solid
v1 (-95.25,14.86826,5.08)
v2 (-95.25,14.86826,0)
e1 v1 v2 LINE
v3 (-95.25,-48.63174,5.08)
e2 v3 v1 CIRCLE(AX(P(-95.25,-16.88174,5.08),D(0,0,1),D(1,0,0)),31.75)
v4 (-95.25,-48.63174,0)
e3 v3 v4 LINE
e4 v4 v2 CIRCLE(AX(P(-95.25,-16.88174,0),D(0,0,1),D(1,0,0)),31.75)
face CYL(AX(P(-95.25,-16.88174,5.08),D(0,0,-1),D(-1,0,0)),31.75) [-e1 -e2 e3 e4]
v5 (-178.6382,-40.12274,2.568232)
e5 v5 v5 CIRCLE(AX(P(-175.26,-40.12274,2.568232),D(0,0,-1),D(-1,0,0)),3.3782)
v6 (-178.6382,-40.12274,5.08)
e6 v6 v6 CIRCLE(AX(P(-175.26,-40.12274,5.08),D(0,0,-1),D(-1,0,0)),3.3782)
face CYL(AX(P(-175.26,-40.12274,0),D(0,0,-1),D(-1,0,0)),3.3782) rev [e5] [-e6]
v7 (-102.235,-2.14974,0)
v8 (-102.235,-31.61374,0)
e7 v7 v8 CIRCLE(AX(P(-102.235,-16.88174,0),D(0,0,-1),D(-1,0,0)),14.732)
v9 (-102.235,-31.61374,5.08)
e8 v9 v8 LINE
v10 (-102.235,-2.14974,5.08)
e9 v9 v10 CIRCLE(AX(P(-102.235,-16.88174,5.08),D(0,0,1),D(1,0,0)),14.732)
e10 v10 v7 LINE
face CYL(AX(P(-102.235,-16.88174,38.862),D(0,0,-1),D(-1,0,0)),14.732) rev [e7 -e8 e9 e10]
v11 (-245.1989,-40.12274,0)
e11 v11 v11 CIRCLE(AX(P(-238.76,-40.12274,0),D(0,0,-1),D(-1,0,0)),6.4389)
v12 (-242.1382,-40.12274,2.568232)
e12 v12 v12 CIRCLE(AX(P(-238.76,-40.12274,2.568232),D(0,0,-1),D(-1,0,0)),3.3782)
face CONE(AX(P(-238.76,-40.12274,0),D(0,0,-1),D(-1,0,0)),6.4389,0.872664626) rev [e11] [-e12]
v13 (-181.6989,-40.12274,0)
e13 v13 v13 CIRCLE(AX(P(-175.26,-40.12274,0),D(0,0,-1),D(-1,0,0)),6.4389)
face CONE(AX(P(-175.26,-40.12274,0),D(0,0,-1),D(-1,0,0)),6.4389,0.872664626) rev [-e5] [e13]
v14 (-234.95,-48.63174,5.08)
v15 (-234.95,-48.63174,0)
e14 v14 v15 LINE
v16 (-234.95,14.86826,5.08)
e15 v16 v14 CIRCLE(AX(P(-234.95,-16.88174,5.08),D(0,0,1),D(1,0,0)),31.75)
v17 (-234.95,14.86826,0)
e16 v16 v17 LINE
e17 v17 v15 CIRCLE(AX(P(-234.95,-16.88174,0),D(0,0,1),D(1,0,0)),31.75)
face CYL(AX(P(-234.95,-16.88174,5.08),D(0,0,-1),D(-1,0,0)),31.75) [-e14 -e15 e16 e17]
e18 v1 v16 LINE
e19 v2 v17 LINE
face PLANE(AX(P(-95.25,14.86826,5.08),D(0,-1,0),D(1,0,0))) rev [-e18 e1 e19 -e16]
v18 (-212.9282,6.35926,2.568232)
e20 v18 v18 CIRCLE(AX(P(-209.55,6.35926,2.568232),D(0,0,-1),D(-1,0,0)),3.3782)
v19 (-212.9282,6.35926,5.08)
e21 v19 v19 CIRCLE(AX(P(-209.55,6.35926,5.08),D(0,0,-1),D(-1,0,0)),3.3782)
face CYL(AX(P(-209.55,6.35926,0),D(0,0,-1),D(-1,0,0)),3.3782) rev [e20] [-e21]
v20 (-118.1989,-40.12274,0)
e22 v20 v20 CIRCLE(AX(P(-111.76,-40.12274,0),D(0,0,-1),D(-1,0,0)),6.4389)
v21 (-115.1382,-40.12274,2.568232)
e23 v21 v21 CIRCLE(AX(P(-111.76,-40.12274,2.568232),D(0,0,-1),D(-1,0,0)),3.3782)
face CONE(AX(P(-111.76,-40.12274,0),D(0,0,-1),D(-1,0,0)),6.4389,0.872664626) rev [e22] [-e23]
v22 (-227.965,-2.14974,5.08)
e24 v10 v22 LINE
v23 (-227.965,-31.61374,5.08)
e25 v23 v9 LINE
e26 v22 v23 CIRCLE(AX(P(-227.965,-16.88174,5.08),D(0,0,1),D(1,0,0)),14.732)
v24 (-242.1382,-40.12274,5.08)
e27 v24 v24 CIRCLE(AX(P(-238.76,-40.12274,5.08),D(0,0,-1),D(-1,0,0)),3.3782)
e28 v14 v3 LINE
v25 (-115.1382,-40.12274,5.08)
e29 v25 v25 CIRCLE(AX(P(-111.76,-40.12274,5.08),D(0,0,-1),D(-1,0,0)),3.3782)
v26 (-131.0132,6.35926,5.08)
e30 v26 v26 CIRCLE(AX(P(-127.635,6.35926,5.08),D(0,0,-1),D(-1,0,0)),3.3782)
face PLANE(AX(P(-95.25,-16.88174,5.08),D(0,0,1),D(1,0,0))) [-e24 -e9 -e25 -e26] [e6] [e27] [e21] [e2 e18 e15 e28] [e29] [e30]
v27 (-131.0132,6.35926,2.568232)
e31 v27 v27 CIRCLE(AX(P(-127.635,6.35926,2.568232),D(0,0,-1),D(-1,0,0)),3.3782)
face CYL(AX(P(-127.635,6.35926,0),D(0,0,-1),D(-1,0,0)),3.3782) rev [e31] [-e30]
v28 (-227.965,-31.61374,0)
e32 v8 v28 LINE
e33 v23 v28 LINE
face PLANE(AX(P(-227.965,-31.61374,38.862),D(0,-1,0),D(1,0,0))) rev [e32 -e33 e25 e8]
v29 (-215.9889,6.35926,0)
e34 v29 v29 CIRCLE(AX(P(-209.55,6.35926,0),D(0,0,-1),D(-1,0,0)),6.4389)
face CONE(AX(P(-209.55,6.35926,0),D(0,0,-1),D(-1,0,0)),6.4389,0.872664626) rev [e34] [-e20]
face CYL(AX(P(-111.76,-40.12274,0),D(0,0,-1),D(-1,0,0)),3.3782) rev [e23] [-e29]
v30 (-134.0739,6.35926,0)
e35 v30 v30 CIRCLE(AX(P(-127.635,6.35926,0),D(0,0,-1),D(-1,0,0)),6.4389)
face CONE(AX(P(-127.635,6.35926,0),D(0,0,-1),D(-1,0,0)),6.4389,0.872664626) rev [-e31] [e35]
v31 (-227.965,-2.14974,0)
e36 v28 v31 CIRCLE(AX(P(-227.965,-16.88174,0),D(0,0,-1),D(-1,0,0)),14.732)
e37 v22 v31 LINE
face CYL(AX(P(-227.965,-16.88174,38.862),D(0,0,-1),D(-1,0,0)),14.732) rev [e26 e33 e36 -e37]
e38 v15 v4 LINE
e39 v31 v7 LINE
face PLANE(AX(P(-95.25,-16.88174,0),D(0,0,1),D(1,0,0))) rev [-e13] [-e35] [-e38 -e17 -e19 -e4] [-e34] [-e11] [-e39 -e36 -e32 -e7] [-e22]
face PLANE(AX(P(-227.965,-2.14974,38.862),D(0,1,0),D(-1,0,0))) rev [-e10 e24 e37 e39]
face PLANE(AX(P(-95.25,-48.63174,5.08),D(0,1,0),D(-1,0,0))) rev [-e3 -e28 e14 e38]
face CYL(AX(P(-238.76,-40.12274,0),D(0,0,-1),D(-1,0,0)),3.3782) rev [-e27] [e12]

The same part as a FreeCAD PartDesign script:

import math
import FreeCAD as App
import Part
import Sketcher
from FreeCAD import Vector
Q = App.Units.Quantity

doc = App.newDocument("Part")
params = doc.addObject("Spreadsheet::Sheet", "Params")
for row, (alias, value) in enumerate([
    ("sketch1_radius", "1.25 in"),
    ("sketch1_width", "5.5 in"),
    ("pad1_length", "0.2 in"),
    ("sketch2_radius", "0.58 in"),
    ("sketch2_width", "4.95 in"),
    ("pocket1_length", "1.53 in"),
    ("sketch3_height", "0.2 in"),
    ("sketch3_width", "0.133 in"),
    ("groove_angle", "360 deg"),
    ("linearpattern_pitch", "3.225 in"),
    ("sketch4_height", "0.2 in"),
    ("sketch4_width", "0.133 in"),
    ("groove2_angle", "360 deg"),
    ("linearpattern2_pitch", "2.5 in"),
    ("sketch5_height", "0.2 in"),
    ("sketch5_width", "0.133 in"),
    ("groove3_angle", "360 deg"),
], start=1):
    params.set(f"A{row}", alias)
    params.set(f"B{row}", "=" + value)
    params.setAlias(f"B{row}", alias)

body = doc.addObject("PartDesign::Body", "Body")

# Sketch on XY plane
sketch1 = body.newObject("Sketcher::SketchObject", "Sketch")
sketch1.AttachmentSupport = (doc.getObject("XY_Plane"), [""])
sketch1.MapMode = "FlatFace"
sketch1.addGeometry([
    Part.LineSegment(Vector(-234.95, -48.63174, 0), Vector(-95.25, -48.63174, 0)),
    Part.ArcOfCircle(Part.Circle(Vector(-95.25, -16.88174, 0), Vector(0, 0, 1), 31.75), math.radians(-90), math.radians(90)),
    Part.LineSegment(Vector(-95.25, 14.86826, 0), Vector(-234.95, 14.86826, 0)),
    Part.ArcOfCircle(Part.Circle(Vector(-234.95, -16.88174, 0), Vector(0, 0, 1), 31.75), math.radians(90), math.radians(270)),
], False)
sketch1.addConstraint([
    Sketcher.Constraint("Tangent", 0, 2, 1, 1),
    Sketcher.Constraint("Tangent", 1, 2, 2, 1),
    Sketcher.Constraint("Tangent", 2, 2, 3, 1),
    Sketcher.Constraint("Tangent", 3, 2, 0, 1),
    Sketcher.Constraint("Horizontal", 0),
    Sketcher.Constraint("Horizontal", 2),
    Sketcher.Constraint("Radius", 1, Q("1.25 in")),
    Sketcher.Constraint("DistanceX", 0, 1, 0, 2, Q("5.5 in")),
    Sketcher.Constraint("DistanceX", 1, 3, -1, 1, Q("3.75 in")),
    Sketcher.Constraint("DistanceY", 1, 3, -1, 1, Q("16.88174 mm")),
])
sketch1.setExpression("Constraints[6]", "Params.sketch1_radius")
sketch1.setExpression("Constraints[7]", "Params.sketch1_width")
pad1 = body.newObject("PartDesign::Pad", "Pad")
pad1.Profile = sketch1
pad1.setExpression("Length", "Params.pad1_length")

# Sketch on XY plane
sketch2 = body.newObject("Sketcher::SketchObject", "Sketch001")
sketch2.AttachmentSupport = (doc.getObject("XY_Plane"), [""])
sketch2.MapMode = "FlatFace"
sketch2.addGeometry([
    Part.LineSegment(Vector(-102.235, -31.61374, 0), Vector(-227.965, -31.61374, 0)),
    Part.ArcOfCircle(Part.Circle(Vector(-227.965, -16.88174, 0), Vector(0, 0, 1), 14.732), math.radians(90), math.radians(270)),
    Part.LineSegment(Vector(-227.965, -2.14974, 0), Vector(-102.235, -2.14974, 0)),
    Part.ArcOfCircle(Part.Circle(Vector(-102.235, -16.88174, 0), Vector(0, 0, 1), 14.732), math.radians(-90), math.radians(90)),
], False)
sketch2.addConstraint([
    Sketcher.Constraint("Tangent", 0, 2, 1, 2),
    Sketcher.Constraint("Tangent", 1, 1, 2, 1),
    Sketcher.Constraint("Tangent", 2, 2, 3, 2),
    Sketcher.Constraint("Tangent", 3, 1, 0, 1),
    Sketcher.Constraint("Horizontal", 0),
    Sketcher.Constraint("Horizontal", 2),
    Sketcher.Constraint("Radius", 1, Q("0.58 in")),
    Sketcher.Constraint("DistanceX", 0, 2, 0, 1, Q("4.95 in")),
    Sketcher.Constraint("DistanceX", 1, 3, -1, 1, Q("8.975 in")),
    Sketcher.Constraint("DistanceY", 1, 3, -1, 1, Q("16.88174 mm")),
])
sketch2.setExpression("Constraints[6]", "Params.sketch2_radius")
sketch2.setExpression("Constraints[7]", "Params.sketch2_width")
pocket1 = body.newObject("PartDesign::Pocket", "Pocket")
pocket1.Profile = sketch2
pocket1.setExpression("Length", "Params.pocket1_length")
pocket1.Reversed = True

# Sketch on YZ plane
sketch3 = body.newObject("Sketcher::SketchObject", "Sketch002")
sketch3.AttachmentSupport = (doc.getObject("YZ_Plane"), [""])
sketch3.MapMode = "FlatFace"
sketch3.AttachmentOffset = App.Placement(Vector(0, 0, -5.025 * 25.4), App.Rotation())
sketch3.addGeometry([
    Part.LineSegment(Vector(6.35926, 5.08, 0), Vector(6.35926, 0, 0)),  # 0
    Part.LineSegment(Vector(6.35926, 0, 0), Vector(12.79816, 0, 0)),  # 1
    Part.LineSegment(Vector(12.79816, 0, 0), Vector(9.73746, 2.568232, 0)),  # 2
    Part.LineSegment(Vector(9.73746, 2.568232, 0), Vector(9.73746, 5.08, 0)),  # 3
    Part.LineSegment(Vector(9.73746, 5.08, 0), Vector(6.35926, 5.08, 0)),  # 4
], False)
sketch3.addGeometry(Part.LineSegment(Vector(6.35926, 0, 0), Vector(6.35926, 5.08, 0)), True)  # axis
sketch3.addConstraint([
    Sketcher.Constraint("Coincident", 0, 2, 1, 1),
    Sketcher.Constraint("Coincident", 1, 2, 2, 1),
    Sketcher.Constraint("Coincident", 2, 2, 3, 1),
    Sketcher.Constraint("Coincident", 3, 2, 4, 1),
    Sketcher.Constraint("Coincident", 4, 2, 0, 1),
    Sketcher.Constraint("Vertical", 0),
    Sketcher.Constraint("Horizontal", 1),
    Sketcher.Constraint("Vertical", 3),
    Sketcher.Constraint("Horizontal", 4),
    Sketcher.Constraint("Vertical", 5),
    Sketcher.Constraint("Coincident", 5, 1, 0, 2),
    Sketcher.Constraint("PointOnObject", 0, 2, -1),
    Sketcher.Constraint("Horizontal", 3, 2, 5, 2),
    Sketcher.Constraint("DistanceY", 0, 2, 0, 1, Q("0.2 in")),
    Sketcher.Constraint("Angle", 2, Q("140 deg")),
    Sketcher.Constraint("DistanceX", 4, 2, 4, 1, Q("0.133 in")),
    Sketcher.Constraint("DistanceX", 1, 1, 1, 2, Q("0.2535 in")),
    Sketcher.Constraint("DistanceX", -1, 1, 0, 2, Q("6.35926 mm")),
])
sketch3.setExpression("Constraints[13]", "Params.sketch3_height")
sketch3.setExpression("Constraints[15]", "Params.sketch3_width")
groove = body.newObject("PartDesign::Groove", "Groove")
groove.Profile = sketch3
groove.ReferenceAxis = (sketch3, ["Axis0"])
groove.setExpression("Angle", "Params.groove_angle")
doc.recompute()

linearpattern = body.newObject("PartDesign::LinearPattern", "LinearPattern")
linearpattern.Originals = [groove]
linearpattern.Direction = (doc.getObject("X_Axis"), [""])
linearpattern.Mode = "offset"
linearpattern.setExpression("Offset", "Params.linearpattern_pitch")
linearpattern.Occurrences = 2
linearpattern.Reversed = True
body.Tip = linearpattern

# Sketch on YZ plane
sketch4 = body.newObject("Sketcher::SketchObject", "Sketch003")
sketch4.AttachmentSupport = (doc.getObject("YZ_Plane"), [""])
sketch4.MapMode = "FlatFace"
sketch4.AttachmentOffset = App.Placement(Vector(0, 0, -4.4 * 25.4), App.Rotation())
sketch4.addGeometry([
    Part.LineSegment(Vector(-40.12274, 5.08, 0), Vector(-40.12274, 0, 0)),  # 0
    Part.LineSegment(Vector(-40.12274, 0, 0), Vector(-33.68384, 0, 0)),  # 1
    Part.LineSegment(Vector(-33.68384, 0, 0), Vector(-36.74454, 2.568232, 0)),  # 2
    Part.LineSegment(Vector(-36.74454, 2.568232, 0), Vector(-36.74454, 5.08, 0)),  # 3
    Part.LineSegment(Vector(-36.74454, 5.08, 0), Vector(-40.12274, 5.08, 0)),  # 4
], False)
sketch4.addGeometry(Part.LineSegment(Vector(-40.12274, 0, 0), Vector(-40.12274, 5.08, 0)), True)  # axis
sketch4.addConstraint([
    Sketcher.Constraint("Coincident", 0, 2, 1, 1),
    Sketcher.Constraint("Coincident", 1, 2, 2, 1),
    Sketcher.Constraint("Coincident", 2, 2, 3, 1),
    Sketcher.Constraint("Coincident", 3, 2, 4, 1),
    Sketcher.Constraint("Coincident", 4, 2, 0, 1),
    Sketcher.Constraint("Vertical", 0),
    Sketcher.Constraint("Horizontal", 1),
    Sketcher.Constraint("Vertical", 3),
    Sketcher.Constraint("Horizontal", 4),
    Sketcher.Constraint("Vertical", 5),
    Sketcher.Constraint("Coincident", 5, 1, 0, 2),
    Sketcher.Constraint("PointOnObject", 0, 2, -1),
    Sketcher.Constraint("Horizontal", 3, 2, 5, 2),
    Sketcher.Constraint("DistanceY", 0, 2, 0, 1, Q("0.2 in")),
    Sketcher.Constraint("Angle", 2, Q("140 deg")),
    Sketcher.Constraint("DistanceX", 4, 2, 4, 1, Q("0.133 in")),
    Sketcher.Constraint("DistanceX", 1, 1, 1, 2, Q("0.2535 in")),
    Sketcher.Constraint("DistanceX", 0, 2, -1, 1, Q("40.12274 mm")),
])
sketch4.setExpression("Constraints[13]", "Params.sketch4_height")
sketch4.setExpression("Constraints[15]", "Params.sketch4_width")
groove2 = body.newObject("PartDesign::Groove", "Groove001")
groove2.Profile = sketch4
groove2.ReferenceAxis = (sketch4, ["Axis0"])
groove2.setExpression("Angle", "Params.groove2_angle")
doc.recompute()

linearpattern2 = body.newObject("PartDesign::LinearPattern", "LinearPattern001")
linearpattern2.Originals = [groove2]
linearpattern2.Direction = (doc.getObject("X_Axis"), [""])
linearpattern2.Mode = "offset"
linearpattern2.setExpression("Offset", "Params.linearpattern2_pitch")
linearpattern2.Occurrences = 2
linearpattern2.Reversed = True
body.Tip = linearpattern2

# Sketch on YZ plane
sketch5 = body.newObject("Sketcher::SketchObject", "Sketch004")
sketch5.AttachmentSupport = (doc.getObject("YZ_Plane"), [""])
sketch5.MapMode = "FlatFace"
sketch5.AttachmentOffset = App.Placement(Vector(0, 0, -9.4 * 25.4), App.Rotation())
sketch5.addGeometry([
    Part.LineSegment(Vector(-40.12274, 5.08, 0), Vector(-40.12274, 0, 0)),  # 0
    Part.LineSegment(Vector(-40.12274, 0, 0), Vector(-33.68384, 0, 0)),  # 1
    Part.LineSegment(Vector(-33.68384, 0, 0), Vector(-36.74454, 2.568232, 0)),  # 2
    Part.LineSegment(Vector(-36.74454, 2.568232, 0), Vector(-36.74454, 5.08, 0)),  # 3
    Part.LineSegment(Vector(-36.74454, 5.08, 0), Vector(-40.12274, 5.08, 0)),  # 4
], False)
sketch5.addGeometry(Part.LineSegment(Vector(-40.12274, 0, 0), Vector(-40.12274, 5.08, 0)), True)  # axis
sketch5.addConstraint([
    Sketcher.Constraint("Coincident", 0, 2, 1, 1),
    Sketcher.Constraint("Coincident", 1, 2, 2, 1),
    Sketcher.Constraint("Coincident", 2, 2, 3, 1),
    Sketcher.Constraint("Coincident", 3, 2, 4, 1),
    Sketcher.Constraint("Coincident", 4, 2, 0, 1),
    Sketcher.Constraint("Vertical", 0),
    Sketcher.Constraint("Horizontal", 1),
    Sketcher.Constraint("Vertical", 3),
    Sketcher.Constraint("Horizontal", 4),
    Sketcher.Constraint("Vertical", 5),
    Sketcher.Constraint("Coincident", 5, 1, 0, 2),
    Sketcher.Constraint("PointOnObject", 0, 2, -1),
    Sketcher.Constraint("Horizontal", 3, 2, 5, 2),
    Sketcher.Constraint("DistanceY", 0, 2, 0, 1, Q("0.2 in")),
    Sketcher.Constraint("Angle", 2, Q("140 deg")),
    Sketcher.Constraint("DistanceX", 4, 2, 4, 1, Q("0.133 in")),
    Sketcher.Constraint("DistanceX", 1, 1, 1, 2, Q("0.2535 in")),
    Sketcher.Constraint("DistanceX", 0, 2, -1, 1, Q("40.12274 mm")),
])
sketch5.setExpression("Constraints[13]", "Params.sketch5_height")
sketch5.setExpression("Constraints[15]", "Params.sketch5_width")
groove3 = body.newObject("PartDesign::Groove", "Groove002")
groove3.Profile = sketch5
groove3.ReferenceAxis = (sketch5, ["Axis0"])
groove3.setExpression("Angle", "Params.groove3_angle")

doc.recompute()
